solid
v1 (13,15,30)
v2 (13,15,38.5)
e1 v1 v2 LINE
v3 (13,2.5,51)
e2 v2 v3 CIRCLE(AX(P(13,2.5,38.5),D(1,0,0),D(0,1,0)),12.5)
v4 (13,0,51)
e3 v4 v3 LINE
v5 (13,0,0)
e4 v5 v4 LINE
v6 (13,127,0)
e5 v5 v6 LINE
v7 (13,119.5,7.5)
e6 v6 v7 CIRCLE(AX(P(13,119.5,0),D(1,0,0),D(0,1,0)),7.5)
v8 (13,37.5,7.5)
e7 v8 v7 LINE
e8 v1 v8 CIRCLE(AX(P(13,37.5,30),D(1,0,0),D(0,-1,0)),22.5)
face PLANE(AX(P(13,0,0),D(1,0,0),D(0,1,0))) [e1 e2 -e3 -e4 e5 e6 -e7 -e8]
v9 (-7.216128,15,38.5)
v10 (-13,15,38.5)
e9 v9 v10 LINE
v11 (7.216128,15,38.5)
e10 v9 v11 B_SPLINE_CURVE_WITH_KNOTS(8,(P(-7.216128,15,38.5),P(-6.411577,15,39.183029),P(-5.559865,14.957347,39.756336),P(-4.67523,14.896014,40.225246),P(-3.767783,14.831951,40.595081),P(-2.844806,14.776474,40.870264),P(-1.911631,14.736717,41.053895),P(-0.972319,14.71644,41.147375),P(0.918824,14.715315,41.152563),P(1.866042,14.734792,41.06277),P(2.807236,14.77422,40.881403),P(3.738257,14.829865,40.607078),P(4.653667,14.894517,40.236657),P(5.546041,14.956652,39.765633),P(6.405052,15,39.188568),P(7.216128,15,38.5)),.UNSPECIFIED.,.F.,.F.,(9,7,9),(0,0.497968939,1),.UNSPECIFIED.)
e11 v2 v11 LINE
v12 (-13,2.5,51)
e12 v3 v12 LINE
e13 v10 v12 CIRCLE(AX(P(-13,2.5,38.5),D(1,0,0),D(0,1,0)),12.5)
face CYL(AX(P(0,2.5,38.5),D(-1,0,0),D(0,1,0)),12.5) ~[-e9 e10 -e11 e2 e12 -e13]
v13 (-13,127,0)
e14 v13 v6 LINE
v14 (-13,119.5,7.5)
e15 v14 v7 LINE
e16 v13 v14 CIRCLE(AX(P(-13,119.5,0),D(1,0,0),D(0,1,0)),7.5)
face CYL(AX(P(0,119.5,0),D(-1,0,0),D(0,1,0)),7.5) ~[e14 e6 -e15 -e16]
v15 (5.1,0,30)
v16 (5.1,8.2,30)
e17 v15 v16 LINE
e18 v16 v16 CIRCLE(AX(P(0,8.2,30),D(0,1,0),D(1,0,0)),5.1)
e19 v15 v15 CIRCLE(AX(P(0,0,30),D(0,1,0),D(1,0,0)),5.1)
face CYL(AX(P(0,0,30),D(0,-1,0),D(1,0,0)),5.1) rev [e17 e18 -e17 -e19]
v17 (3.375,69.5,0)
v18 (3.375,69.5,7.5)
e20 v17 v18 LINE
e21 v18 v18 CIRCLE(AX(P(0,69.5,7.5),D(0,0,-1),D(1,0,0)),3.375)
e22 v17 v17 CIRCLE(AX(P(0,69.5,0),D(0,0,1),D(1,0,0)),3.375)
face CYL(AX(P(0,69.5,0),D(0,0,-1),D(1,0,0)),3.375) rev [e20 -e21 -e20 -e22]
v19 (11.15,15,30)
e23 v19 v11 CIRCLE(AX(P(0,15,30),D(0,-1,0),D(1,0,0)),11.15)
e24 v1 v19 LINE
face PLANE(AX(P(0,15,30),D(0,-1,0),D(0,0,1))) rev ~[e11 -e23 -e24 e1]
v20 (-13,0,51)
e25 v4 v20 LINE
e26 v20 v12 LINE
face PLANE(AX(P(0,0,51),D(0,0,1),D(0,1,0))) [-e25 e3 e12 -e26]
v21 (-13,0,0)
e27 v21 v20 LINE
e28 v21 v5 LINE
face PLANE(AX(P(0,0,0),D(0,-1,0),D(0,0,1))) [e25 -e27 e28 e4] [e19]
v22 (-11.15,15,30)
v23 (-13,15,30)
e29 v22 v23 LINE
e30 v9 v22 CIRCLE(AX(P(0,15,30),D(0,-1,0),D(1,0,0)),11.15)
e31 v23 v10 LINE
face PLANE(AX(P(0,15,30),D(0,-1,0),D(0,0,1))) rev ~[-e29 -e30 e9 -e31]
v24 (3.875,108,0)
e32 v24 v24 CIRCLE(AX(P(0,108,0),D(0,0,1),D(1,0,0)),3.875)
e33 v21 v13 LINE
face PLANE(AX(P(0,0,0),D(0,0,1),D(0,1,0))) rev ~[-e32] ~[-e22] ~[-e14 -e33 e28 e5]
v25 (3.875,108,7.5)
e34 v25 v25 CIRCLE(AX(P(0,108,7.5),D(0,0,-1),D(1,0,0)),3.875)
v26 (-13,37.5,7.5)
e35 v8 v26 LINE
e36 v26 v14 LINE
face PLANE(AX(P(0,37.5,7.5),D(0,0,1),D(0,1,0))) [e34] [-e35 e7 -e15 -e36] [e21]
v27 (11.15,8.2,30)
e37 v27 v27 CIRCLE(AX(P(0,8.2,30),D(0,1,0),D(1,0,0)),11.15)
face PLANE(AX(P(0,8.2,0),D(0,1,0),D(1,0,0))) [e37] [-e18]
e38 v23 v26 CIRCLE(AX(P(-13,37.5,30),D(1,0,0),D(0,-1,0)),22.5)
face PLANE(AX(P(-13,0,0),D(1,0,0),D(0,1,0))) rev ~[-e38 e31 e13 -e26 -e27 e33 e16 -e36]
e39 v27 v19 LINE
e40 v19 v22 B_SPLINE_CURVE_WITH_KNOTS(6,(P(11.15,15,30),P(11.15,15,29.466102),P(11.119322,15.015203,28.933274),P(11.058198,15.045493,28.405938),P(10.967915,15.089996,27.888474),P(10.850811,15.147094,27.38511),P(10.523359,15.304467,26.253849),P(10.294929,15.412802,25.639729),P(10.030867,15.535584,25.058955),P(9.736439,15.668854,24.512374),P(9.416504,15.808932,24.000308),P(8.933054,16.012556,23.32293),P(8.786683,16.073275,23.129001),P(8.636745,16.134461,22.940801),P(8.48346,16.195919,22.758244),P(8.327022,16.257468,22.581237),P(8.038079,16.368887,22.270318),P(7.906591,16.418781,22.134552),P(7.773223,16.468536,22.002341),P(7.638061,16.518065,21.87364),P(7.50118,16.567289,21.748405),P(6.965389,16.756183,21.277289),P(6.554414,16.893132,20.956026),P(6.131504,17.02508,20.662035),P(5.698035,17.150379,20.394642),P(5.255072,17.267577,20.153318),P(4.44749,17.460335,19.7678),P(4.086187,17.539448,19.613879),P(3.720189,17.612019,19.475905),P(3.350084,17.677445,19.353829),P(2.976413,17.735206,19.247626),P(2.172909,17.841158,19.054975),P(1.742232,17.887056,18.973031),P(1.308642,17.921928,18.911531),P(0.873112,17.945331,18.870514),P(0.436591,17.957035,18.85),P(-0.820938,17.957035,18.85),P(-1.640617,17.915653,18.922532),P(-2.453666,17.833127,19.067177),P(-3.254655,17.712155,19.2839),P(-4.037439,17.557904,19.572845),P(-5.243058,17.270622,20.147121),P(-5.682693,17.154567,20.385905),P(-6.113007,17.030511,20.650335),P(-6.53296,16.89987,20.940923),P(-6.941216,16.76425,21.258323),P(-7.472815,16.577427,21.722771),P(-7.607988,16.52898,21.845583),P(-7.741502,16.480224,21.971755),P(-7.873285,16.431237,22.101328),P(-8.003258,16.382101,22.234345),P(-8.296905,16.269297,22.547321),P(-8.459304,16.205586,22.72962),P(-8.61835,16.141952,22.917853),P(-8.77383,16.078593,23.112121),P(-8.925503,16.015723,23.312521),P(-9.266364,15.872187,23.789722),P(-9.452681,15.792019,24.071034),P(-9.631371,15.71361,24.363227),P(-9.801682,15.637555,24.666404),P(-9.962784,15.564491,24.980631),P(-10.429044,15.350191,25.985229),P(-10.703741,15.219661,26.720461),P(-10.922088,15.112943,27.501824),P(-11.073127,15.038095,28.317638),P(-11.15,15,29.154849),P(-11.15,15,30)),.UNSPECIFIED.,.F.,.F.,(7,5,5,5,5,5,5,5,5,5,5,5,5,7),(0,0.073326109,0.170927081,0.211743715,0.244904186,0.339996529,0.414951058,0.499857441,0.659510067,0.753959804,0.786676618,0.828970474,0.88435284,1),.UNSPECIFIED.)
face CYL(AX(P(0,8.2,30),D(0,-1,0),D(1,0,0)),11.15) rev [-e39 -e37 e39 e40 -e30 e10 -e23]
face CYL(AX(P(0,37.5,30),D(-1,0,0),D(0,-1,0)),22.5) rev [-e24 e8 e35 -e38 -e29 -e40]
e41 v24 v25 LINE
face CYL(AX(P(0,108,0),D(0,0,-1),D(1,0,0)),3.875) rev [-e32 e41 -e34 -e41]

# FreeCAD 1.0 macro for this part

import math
import FreeCAD as App
import Part
import Sketcher

doc = App.newDocument("Part")
body = doc.addObject("PartDesign::Body", "Body")

# Sketch on YZ plane
sketch1 = body.newObject("Sketcher::SketchObject", "Sketch")
sketch1.AttachmentSupport = (doc.getObject("YZ_Plane"), [""])
sketch1.MapMode = "FlatFace"
sketch1.addGeometry([
    Part.LineSegment(App.Vector(0, 51, 0), App.Vector(0, 0, 0)),  # 0
    Part.LineSegment(App.Vector(0, 0, 0), App.Vector(127, 0, 0)),  # 1
    Part.ArcOfCircle(Part.Circle(App.Vector(119.5, 0, 0), App.Vector(0, 0, 1), 7.5), math.radians(0), math.radians(90)),  # 2
    Part.LineSegment(App.Vector(119.5, 7.5, 0), App.Vector(37.5, 7.5, 0)),  # 3
    Part.ArcOfCircle(Part.Circle(App.Vector(37.5, 30, 0), App.Vector(0, 0, 1), 22.5), math.radians(180), math.radians(270)),  # 4
    Part.LineSegment(App.Vector(15, 30, 0), App.Vector(15, 38.5, 0)),  # 5
    Part.ArcOfCircle(Part.Circle(App.Vector(2.5, 38.5, 0), App.Vector(0, 0, 1), 12.5), math.radians(0), math.radians(90)),  # 6
    Part.LineSegment(App.Vector(2.5, 51, 0), App.Vector(0, 51, 0)),  # 7
], False)
sketch1.addConstraint([
    Sketcher.Constraint("Coincident", 0, 2, 1, 1),
    Sketcher.Constraint("Coincident", 1, 2, 2, 1),
    Sketcher.Constraint("Tangent", 2, 2, 3, 1),
    Sketcher.Constraint("Tangent", 3, 2, 4, 2),
    Sketcher.Constraint("Tangent", 4, 1, 5, 1),
    Sketcher.Constraint("Tangent", 5, 2, 6, 1),
    Sketcher.Constraint("Tangent", 6, 2, 7, 1),
    Sketcher.Constraint("Coincident", 7, 2, 0, 1),
    Sketcher.Constraint("Vertical", 0),
    Sketcher.Constraint("Horizontal", 1),
    Sketcher.Constraint("Horizontal", 3),
    Sketcher.Constraint("Vertical", 5),
    Sketcher.Constraint("Horizontal", 7),
    Sketcher.Constraint("Coincident", 0, 2, -1, 1),
    Sketcher.Constraint("PointOnObject", 2, 3, -1),
    Sketcher.Constraint("Radius", 2, 7.5),
    Sketcher.Constraint("Radius", 4, 22.5),
    Sketcher.Constraint("Radius", 6, 12.5),
    Sketcher.Constraint("DistanceX", 1, 1, 1, 2, 127.0),
    Sketcher.Constraint("DistanceY", 0, 2, 0, 1, 51.0),
    Sketcher.Constraint("DistanceX", 3, 2, 3, 1, 82.0),
])
pad1 = body.newObject("PartDesign::Pad", "Pad")
pad1.Profile = sketch1
pad1.Length = 26
pad1.Midplane = True

# Sketch on XY plane
sketch2 = body.newObject("Sketcher::SketchObject", "Sketch001")
sketch2.AttachmentSupport = (doc.getObject("XY_Plane"), [""])
sketch2.MapMode = "FlatFace"
sketch2.addGeometry([
    Part.Circle(App.Vector(0, 69.5, 0), App.Vector(0, 0, 1), 3.4),
    Part.Circle(App.Vector(0, 108, 0), App.Vector(0, 0, 1), 3.9),
], False)
sketch2.addConstraint([
    Sketcher.Constraint("PointOnObject", 0, 3, -2),
    Sketcher.Constraint("PointOnObject", 1, 3, -2),
    Sketcher.Constraint("Diameter", 0, 6.75),
    Sketcher.Constraint("Diameter", 1, 7.75),
    Sketcher.Constraint("DistanceY", -1, 1, 1, 3, 108.0),
    Sketcher.Constraint("DistanceY", -1, 1, 0, 3, 69.5),
])
pocket1 = body.newObject("PartDesign::Pocket", "Pocket")
pocket1.Profile = sketch2
pocket1.Length = 20
pocket1.Reversed = True

# Sketch on XZ plane
sketch3 = body.newObject("Sketcher::SketchObject", "Sketch002")
sketch3.AttachmentSupport = (doc.getObject("XZ_Plane"), [""])
sketch3.MapMode = "FlatFace"
sketch3.addGeometry(Part.Circle(App.Vector(0, 30, 0), App.Vector(0, 0, 1), 5), False)
sketch3.addConstraint([
    Sketcher.Constraint("PointOnObject", 0, 3, -2),
    Sketcher.Constraint("Diameter", 0, 10.2),
    Sketcher.Constraint("DistanceY", -1, 1, 0, 3, 30.0),
])
pocket2 = body.newObject("PartDesign::Pocket", "Pocket001")
pocket2.Profile = sketch3
pocket2.Length = 90

# Sketch on XZ plane
sketch4 = body.newObject("Sketcher::SketchObject", "Sketch003")
sketch4.AttachmentSupport = (doc.getObject("XZ_Plane"), [""])
sketch4.MapMode = "FlatFace"
sketch4.AttachmentOffset = App.Placement(App.Vector(0, 0, -8.2), App.Rotation())
sketch4.addGeometry([
    Part.Circle(App.Vector(0, 30, 0), App.Vector(0, 0, 1), 11),
    Part.Circle(App.Vector(0, 30, 0), App.Vector(0, 0, 1), 5),
], False)
sketch4.addConstraint([
    Sketcher.Constraint("Coincident", 1, 3, 0, 3),
    Sketcher.Constraint("PointOnObject", 0, 3, -2),
    Sketcher.Constraint("Diameter", 0, 22.3),
    Sketcher.Constraint("Diameter", 1, 10.2),
    Sketcher.Constraint("DistanceY", -1, 1, 0, 3, 30.0),
])
pocket3 = body.newObject("PartDesign::Pocket", "Pocket002")
pocket3.Profile = sketch4
pocket3.Length = 20

doc.recompute()
